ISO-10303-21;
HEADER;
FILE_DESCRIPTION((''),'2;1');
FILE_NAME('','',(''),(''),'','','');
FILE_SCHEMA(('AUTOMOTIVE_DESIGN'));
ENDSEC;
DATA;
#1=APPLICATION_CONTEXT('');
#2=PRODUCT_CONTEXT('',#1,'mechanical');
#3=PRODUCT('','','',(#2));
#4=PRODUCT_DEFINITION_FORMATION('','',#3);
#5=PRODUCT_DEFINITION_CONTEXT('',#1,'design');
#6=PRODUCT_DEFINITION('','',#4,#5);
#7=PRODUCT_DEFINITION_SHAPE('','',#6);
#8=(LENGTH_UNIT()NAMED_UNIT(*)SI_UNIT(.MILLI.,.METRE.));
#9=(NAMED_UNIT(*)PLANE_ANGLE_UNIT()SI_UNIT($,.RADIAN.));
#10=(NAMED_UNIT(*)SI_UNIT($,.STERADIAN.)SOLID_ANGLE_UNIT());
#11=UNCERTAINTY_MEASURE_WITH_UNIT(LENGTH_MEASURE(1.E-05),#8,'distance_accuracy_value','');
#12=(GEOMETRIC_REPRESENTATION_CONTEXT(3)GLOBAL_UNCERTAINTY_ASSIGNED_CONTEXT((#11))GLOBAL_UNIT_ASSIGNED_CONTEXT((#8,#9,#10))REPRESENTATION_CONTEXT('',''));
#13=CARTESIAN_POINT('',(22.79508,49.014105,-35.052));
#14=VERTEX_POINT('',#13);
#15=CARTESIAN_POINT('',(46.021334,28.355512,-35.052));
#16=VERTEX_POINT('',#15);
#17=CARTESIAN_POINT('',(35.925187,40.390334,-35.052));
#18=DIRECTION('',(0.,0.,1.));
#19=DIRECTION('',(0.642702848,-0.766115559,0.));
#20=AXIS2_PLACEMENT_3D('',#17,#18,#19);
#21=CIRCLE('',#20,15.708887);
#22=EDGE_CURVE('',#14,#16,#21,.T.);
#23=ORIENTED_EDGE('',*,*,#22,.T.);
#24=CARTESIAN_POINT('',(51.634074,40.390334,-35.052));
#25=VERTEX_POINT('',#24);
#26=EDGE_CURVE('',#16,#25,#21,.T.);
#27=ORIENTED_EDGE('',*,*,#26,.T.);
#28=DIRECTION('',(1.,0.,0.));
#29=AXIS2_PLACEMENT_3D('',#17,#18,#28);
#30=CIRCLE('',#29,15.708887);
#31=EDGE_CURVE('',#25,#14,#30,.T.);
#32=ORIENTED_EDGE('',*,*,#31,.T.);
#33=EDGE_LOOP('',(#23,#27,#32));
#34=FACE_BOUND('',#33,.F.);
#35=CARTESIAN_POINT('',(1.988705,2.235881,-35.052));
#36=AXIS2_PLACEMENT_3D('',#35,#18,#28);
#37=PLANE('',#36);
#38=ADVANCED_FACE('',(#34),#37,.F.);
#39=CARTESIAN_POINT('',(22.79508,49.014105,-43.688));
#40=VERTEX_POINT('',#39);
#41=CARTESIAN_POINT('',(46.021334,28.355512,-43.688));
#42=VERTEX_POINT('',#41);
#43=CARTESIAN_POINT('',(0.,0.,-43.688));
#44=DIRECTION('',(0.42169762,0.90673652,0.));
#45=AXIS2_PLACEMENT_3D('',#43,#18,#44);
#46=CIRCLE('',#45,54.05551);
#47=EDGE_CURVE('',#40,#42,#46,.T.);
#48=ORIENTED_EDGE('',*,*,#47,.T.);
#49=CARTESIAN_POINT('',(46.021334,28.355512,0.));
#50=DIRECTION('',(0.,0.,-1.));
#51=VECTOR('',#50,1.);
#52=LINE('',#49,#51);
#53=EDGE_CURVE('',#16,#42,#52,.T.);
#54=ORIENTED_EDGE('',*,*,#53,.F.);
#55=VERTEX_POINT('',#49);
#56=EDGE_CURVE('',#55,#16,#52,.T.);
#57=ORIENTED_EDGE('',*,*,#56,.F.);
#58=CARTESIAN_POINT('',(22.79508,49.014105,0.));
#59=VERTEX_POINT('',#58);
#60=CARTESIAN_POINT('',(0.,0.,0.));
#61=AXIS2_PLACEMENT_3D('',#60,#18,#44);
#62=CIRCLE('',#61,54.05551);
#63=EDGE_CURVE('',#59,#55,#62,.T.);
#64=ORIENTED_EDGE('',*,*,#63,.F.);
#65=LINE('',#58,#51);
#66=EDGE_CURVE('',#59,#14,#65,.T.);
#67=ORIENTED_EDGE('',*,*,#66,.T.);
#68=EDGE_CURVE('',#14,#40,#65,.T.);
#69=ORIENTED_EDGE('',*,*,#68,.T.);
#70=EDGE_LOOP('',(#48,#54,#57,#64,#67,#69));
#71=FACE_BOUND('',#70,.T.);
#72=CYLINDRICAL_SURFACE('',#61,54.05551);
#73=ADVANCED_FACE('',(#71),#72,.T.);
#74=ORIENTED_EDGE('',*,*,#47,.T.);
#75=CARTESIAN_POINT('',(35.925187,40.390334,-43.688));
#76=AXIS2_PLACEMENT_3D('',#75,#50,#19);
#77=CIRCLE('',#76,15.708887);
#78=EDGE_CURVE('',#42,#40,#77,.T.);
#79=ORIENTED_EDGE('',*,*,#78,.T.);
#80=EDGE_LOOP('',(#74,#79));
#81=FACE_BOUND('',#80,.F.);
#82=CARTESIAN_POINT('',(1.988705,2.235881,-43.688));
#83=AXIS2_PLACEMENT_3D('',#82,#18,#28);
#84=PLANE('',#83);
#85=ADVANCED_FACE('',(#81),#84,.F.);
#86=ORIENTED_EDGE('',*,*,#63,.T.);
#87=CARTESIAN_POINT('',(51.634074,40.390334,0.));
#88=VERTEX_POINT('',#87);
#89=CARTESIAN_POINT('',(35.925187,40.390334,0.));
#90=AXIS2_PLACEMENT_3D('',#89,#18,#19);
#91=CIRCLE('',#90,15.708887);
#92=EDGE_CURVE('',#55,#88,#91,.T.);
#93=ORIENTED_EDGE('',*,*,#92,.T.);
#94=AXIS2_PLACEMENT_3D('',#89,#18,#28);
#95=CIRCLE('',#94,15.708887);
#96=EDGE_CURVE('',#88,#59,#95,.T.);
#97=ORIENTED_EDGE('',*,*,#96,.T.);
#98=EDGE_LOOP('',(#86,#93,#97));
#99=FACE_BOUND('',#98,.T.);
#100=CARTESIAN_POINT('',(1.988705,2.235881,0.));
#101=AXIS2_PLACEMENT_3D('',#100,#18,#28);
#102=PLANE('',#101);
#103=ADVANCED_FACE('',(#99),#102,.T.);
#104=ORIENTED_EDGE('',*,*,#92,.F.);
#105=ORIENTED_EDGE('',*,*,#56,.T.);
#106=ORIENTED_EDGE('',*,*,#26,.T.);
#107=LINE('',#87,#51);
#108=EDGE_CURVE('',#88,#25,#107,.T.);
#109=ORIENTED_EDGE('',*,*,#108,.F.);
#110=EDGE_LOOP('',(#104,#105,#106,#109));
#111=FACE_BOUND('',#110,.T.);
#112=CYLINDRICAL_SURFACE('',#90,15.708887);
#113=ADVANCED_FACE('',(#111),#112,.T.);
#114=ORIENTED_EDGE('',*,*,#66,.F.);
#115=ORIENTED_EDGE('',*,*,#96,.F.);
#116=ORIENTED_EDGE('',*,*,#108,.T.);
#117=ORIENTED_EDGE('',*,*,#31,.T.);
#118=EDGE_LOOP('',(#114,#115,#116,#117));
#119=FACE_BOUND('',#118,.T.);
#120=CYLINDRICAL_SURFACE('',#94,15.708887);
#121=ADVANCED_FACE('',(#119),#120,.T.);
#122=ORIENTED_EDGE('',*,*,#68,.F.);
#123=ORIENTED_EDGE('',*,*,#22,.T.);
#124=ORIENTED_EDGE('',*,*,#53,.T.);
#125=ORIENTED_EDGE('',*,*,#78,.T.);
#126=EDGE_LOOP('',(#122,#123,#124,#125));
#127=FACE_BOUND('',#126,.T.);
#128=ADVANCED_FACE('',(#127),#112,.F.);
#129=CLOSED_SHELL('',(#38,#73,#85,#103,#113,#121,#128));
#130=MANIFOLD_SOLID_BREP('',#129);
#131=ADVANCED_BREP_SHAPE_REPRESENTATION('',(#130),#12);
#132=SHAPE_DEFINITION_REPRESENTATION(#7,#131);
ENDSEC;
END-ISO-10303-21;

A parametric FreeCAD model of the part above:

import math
import FreeCAD as App
import Part
import Sketcher

V = App.Vector
Q = App.Units.Quantity

doc = App.newDocument("Part")
body = doc.addObject("PartDesign::Body", "Body")

# Sketch on XY plane
sketch1 = body.newObject("Sketcher::SketchObject", "Sketch")
sketch1.AttachmentSupport = (doc.getObject("XY_Plane"), [""])
sketch1.MapMode = "FlatFace"
sketch1.addGeometry([
    Part.ArcOfCircle(Part.Circle(V(0, 0, 0), V(0, 0, 1), 54), math.radians(65), math.radians(392)),
    Part.ArcOfCircle(Part.Circle(V(36, 40, 0), V(0, 0, 1), 16), math.radians(147), math.radians(310)),
], False)
sketch1.addConstraint([
    Sketcher.Constraint("Coincident", 0, 1, 1, 1),
    Sketcher.Constraint("Coincident", 1, 2, 0, 2),
    Sketcher.Constraint("Coincident", 0, 3, -1, 1),
    Sketcher.Constraint("Radius", 0, 54.05551),
    Sketcher.Constraint("Radius", 1, 15.708887),
    Sketcher.Constraint("DistanceX", -1, 1, 0, 1, 22.79508),
    Sketcher.Constraint("DistanceY", -1, 1, 1, 2, 28.355512),
])
pad1 = body.newObject("PartDesign::Pad", "Pad")
pad1.Profile = sketch1
pad1.Length = Q("1.72 in")
pad1.Reversed = True

# Sketch on XY plane
sketch2 = body.newObject("Sketcher::SketchObject", "Sketch001")
sketch2.AttachmentSupport = (doc.getObject("XY_Plane"), [""])
sketch2.MapMode = "FlatFace"
sketch2.addGeometry([
    Part.ArcOfCircle(Part.Circle(V(0, 0, 0), V(0, 0, 1), 54), math.radians(65), math.radians(392)),
    Part.ArcOfCircle(Part.Circle(V(36, 40, 0), V(0, 0, 1), 16), math.radians(-50), math.radians(0)),
    Part.ArcOfCircle(Part.Circle(V(36, 40, 0), V(0, 0, 1), 16), math.radians(0), math.radians(147)),
], False)
sketch2.addConstraint([
    Sketcher.Constraint("Coincident", 0, 2, 1, 1),
    Sketcher.Constraint("Tangent", 1, 2, 2, 1),
    Sketcher.Constraint("Coincident", 2, 2, 0, 1),
    Sketcher.Constraint("Coincident", 0, 3, -1, 1),
    Sketcher.Constraint("Equal", 1, 2),
    Sketcher.Constraint("Horizontal", 2, 3, 1, 2),
    Sketcher.Constraint("Radius", 0, 54.05551),
    Sketcher.Constraint("Radius", 1, 15.708887),
    Sketcher.Constraint("DistanceY", -1, 1, 0, 2, 28.355512),
    Sketcher.Constraint("DistanceX", -1, 1, 2, 2, 22.79508),
])
pad2 = body.newObject("PartDesign::Pad", "Pad001")
pad2.Profile = sketch2
pad2.Length = Q("1.38 in")
pad2.Reversed = True

doc.recompute()
